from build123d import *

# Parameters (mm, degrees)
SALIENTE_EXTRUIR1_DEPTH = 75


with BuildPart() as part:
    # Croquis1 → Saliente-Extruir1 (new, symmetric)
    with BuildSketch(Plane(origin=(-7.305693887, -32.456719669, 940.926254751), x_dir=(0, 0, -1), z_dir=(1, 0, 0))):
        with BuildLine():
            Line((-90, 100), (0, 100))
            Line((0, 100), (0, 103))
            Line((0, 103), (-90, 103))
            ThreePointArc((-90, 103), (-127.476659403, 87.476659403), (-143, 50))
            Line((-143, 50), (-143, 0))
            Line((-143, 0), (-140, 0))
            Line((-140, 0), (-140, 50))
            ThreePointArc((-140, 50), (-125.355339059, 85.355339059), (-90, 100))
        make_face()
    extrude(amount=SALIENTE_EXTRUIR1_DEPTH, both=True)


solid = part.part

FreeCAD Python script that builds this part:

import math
import FreeCAD as App
import Part
import Sketcher

V = App.Vector

doc = App.newDocument("Part")
params = doc.addObject("Spreadsheet::Sheet", "Params")
for row, (alias, value) in enumerate([
    ("sketch1_radius", "53 mm"),
    ("sketch1_radius2", "50 mm"),
    ("sketch1_width", "50 mm"),
    ("sketch1_height", "90 mm"),
    ("pad1_length", "150 mm"),
], start=1):
    params.set(f"A{row}", alias)
    params.set(f"B{row}", "=" + value)
    params.setAlias(f"B{row}", alias)

body = doc.addObject("PartDesign::Body", "Body")

# Sketch on YZ plane
sketch1 = doc.addObject("Sketcher::SketchObject", "Sketch")
body.addObject(sketch1)
sketch1.AttachmentSupport = (doc.YZ_Plane, [""])
sketch1.MapMode = "FlatFace"
sketch1.AttachmentOffset = App.Placement(V(0, 0, -7.305694), App.Rotation())
sketch1.addGeometry([
    Part.LineSegment(V(67.5, 1030.9, 0), V(67.5, 940.9, 0)),  # 0
    Part.LineSegment(V(67.5, 940.9, 0), V(70.5, 940.9, 0)),  # 1
    Part.LineSegment(V(70.5, 940.9, 0), V(70.5, 1030.9, 0)),  # 2
    Part.ArcOfCircle(Part.Circle(V(17.5, 1030.9, 0), V(0, 0, 1), 53), math.radians(0), math.radians(90)),  # 3
    Part.LineSegment(V(17.5, 1083.9, 0), V(-32.5, 1083.9, 0)),  # 4
    Part.LineSegment(V(-32.5, 1083.9, 0), V(-32.5, 1080.9, 0)),  # 5
    Part.LineSegment(V(-32.5, 1080.9, 0), V(17.5, 1080.9, 0)),  # 6
    Part.ArcOfCircle(Part.Circle(V(17.5, 1030.9, 0), V(0, 0, 1), 50), math.radians(0), math.radians(90)),  # 7
], False)
sketch1.addConstraint([
    Sketcher.Constraint("Coincident", 0, 2, 1, 1),
    Sketcher.Constraint("Coincident", 1, 2, 2, 1),
    Sketcher.Constraint("Tangent", 2, 2, 3, 1),
    Sketcher.Constraint("Tangent", 3, 2, 4, 1),
    Sketcher.Constraint("Coincident", 4, 2, 5, 1),
    Sketcher.Constraint("Coincident", 5, 2, 6, 1),
    Sketcher.Constraint("Tangent", 6, 2, 7, 2),
    Sketcher.Constraint("Tangent", 7, 1, 0, 1),
    Sketcher.Constraint("Vertical", 0),
    Sketcher.Constraint("Horizontal", 1),
    Sketcher.Constraint("Vertical", 2),
    Sketcher.Constraint("Horizontal", 4),
    Sketcher.Constraint("Vertical", 5),
    Sketcher.Constraint("Horizontal", 6),
    Sketcher.Constraint("Coincident", 7, 3, 3, 3),
    Sketcher.Constraint("Radius", 3, 53.0),
    Sketcher.Constraint("Radius", 7, 50.0),
    Sketcher.Constraint("DistanceX", 4, 2, 4, 1, 50.0),
    Sketcher.Constraint("DistanceY", 0, 2, 0, 1, 90.0),
    Sketcher.Constraint("DistanceX", -1, 1, 3, 3, 17.54328),
    Sketcher.Constraint("DistanceY", -1, 1, 3, 3, 1030.926255),
])
sketch1.setExpression("Constraints[15]", "Params.sketch1_radius")
sketch1.setExpression("Constraints[16]", "Params.sketch1_radius2")
sketch1.setExpression("Constraints[17]", "Params.sketch1_width")
sketch1.setExpression("Constraints[18]", "Params.sketch1_height")
pad1 = doc.addObject("PartDesign::Pad", "Pad")
body.addObject(pad1)
pad1.Profile = sketch1
pad1.setExpression("Length", "Params.pad1_length")
pad1.Midplane = True

doc.recompute()
